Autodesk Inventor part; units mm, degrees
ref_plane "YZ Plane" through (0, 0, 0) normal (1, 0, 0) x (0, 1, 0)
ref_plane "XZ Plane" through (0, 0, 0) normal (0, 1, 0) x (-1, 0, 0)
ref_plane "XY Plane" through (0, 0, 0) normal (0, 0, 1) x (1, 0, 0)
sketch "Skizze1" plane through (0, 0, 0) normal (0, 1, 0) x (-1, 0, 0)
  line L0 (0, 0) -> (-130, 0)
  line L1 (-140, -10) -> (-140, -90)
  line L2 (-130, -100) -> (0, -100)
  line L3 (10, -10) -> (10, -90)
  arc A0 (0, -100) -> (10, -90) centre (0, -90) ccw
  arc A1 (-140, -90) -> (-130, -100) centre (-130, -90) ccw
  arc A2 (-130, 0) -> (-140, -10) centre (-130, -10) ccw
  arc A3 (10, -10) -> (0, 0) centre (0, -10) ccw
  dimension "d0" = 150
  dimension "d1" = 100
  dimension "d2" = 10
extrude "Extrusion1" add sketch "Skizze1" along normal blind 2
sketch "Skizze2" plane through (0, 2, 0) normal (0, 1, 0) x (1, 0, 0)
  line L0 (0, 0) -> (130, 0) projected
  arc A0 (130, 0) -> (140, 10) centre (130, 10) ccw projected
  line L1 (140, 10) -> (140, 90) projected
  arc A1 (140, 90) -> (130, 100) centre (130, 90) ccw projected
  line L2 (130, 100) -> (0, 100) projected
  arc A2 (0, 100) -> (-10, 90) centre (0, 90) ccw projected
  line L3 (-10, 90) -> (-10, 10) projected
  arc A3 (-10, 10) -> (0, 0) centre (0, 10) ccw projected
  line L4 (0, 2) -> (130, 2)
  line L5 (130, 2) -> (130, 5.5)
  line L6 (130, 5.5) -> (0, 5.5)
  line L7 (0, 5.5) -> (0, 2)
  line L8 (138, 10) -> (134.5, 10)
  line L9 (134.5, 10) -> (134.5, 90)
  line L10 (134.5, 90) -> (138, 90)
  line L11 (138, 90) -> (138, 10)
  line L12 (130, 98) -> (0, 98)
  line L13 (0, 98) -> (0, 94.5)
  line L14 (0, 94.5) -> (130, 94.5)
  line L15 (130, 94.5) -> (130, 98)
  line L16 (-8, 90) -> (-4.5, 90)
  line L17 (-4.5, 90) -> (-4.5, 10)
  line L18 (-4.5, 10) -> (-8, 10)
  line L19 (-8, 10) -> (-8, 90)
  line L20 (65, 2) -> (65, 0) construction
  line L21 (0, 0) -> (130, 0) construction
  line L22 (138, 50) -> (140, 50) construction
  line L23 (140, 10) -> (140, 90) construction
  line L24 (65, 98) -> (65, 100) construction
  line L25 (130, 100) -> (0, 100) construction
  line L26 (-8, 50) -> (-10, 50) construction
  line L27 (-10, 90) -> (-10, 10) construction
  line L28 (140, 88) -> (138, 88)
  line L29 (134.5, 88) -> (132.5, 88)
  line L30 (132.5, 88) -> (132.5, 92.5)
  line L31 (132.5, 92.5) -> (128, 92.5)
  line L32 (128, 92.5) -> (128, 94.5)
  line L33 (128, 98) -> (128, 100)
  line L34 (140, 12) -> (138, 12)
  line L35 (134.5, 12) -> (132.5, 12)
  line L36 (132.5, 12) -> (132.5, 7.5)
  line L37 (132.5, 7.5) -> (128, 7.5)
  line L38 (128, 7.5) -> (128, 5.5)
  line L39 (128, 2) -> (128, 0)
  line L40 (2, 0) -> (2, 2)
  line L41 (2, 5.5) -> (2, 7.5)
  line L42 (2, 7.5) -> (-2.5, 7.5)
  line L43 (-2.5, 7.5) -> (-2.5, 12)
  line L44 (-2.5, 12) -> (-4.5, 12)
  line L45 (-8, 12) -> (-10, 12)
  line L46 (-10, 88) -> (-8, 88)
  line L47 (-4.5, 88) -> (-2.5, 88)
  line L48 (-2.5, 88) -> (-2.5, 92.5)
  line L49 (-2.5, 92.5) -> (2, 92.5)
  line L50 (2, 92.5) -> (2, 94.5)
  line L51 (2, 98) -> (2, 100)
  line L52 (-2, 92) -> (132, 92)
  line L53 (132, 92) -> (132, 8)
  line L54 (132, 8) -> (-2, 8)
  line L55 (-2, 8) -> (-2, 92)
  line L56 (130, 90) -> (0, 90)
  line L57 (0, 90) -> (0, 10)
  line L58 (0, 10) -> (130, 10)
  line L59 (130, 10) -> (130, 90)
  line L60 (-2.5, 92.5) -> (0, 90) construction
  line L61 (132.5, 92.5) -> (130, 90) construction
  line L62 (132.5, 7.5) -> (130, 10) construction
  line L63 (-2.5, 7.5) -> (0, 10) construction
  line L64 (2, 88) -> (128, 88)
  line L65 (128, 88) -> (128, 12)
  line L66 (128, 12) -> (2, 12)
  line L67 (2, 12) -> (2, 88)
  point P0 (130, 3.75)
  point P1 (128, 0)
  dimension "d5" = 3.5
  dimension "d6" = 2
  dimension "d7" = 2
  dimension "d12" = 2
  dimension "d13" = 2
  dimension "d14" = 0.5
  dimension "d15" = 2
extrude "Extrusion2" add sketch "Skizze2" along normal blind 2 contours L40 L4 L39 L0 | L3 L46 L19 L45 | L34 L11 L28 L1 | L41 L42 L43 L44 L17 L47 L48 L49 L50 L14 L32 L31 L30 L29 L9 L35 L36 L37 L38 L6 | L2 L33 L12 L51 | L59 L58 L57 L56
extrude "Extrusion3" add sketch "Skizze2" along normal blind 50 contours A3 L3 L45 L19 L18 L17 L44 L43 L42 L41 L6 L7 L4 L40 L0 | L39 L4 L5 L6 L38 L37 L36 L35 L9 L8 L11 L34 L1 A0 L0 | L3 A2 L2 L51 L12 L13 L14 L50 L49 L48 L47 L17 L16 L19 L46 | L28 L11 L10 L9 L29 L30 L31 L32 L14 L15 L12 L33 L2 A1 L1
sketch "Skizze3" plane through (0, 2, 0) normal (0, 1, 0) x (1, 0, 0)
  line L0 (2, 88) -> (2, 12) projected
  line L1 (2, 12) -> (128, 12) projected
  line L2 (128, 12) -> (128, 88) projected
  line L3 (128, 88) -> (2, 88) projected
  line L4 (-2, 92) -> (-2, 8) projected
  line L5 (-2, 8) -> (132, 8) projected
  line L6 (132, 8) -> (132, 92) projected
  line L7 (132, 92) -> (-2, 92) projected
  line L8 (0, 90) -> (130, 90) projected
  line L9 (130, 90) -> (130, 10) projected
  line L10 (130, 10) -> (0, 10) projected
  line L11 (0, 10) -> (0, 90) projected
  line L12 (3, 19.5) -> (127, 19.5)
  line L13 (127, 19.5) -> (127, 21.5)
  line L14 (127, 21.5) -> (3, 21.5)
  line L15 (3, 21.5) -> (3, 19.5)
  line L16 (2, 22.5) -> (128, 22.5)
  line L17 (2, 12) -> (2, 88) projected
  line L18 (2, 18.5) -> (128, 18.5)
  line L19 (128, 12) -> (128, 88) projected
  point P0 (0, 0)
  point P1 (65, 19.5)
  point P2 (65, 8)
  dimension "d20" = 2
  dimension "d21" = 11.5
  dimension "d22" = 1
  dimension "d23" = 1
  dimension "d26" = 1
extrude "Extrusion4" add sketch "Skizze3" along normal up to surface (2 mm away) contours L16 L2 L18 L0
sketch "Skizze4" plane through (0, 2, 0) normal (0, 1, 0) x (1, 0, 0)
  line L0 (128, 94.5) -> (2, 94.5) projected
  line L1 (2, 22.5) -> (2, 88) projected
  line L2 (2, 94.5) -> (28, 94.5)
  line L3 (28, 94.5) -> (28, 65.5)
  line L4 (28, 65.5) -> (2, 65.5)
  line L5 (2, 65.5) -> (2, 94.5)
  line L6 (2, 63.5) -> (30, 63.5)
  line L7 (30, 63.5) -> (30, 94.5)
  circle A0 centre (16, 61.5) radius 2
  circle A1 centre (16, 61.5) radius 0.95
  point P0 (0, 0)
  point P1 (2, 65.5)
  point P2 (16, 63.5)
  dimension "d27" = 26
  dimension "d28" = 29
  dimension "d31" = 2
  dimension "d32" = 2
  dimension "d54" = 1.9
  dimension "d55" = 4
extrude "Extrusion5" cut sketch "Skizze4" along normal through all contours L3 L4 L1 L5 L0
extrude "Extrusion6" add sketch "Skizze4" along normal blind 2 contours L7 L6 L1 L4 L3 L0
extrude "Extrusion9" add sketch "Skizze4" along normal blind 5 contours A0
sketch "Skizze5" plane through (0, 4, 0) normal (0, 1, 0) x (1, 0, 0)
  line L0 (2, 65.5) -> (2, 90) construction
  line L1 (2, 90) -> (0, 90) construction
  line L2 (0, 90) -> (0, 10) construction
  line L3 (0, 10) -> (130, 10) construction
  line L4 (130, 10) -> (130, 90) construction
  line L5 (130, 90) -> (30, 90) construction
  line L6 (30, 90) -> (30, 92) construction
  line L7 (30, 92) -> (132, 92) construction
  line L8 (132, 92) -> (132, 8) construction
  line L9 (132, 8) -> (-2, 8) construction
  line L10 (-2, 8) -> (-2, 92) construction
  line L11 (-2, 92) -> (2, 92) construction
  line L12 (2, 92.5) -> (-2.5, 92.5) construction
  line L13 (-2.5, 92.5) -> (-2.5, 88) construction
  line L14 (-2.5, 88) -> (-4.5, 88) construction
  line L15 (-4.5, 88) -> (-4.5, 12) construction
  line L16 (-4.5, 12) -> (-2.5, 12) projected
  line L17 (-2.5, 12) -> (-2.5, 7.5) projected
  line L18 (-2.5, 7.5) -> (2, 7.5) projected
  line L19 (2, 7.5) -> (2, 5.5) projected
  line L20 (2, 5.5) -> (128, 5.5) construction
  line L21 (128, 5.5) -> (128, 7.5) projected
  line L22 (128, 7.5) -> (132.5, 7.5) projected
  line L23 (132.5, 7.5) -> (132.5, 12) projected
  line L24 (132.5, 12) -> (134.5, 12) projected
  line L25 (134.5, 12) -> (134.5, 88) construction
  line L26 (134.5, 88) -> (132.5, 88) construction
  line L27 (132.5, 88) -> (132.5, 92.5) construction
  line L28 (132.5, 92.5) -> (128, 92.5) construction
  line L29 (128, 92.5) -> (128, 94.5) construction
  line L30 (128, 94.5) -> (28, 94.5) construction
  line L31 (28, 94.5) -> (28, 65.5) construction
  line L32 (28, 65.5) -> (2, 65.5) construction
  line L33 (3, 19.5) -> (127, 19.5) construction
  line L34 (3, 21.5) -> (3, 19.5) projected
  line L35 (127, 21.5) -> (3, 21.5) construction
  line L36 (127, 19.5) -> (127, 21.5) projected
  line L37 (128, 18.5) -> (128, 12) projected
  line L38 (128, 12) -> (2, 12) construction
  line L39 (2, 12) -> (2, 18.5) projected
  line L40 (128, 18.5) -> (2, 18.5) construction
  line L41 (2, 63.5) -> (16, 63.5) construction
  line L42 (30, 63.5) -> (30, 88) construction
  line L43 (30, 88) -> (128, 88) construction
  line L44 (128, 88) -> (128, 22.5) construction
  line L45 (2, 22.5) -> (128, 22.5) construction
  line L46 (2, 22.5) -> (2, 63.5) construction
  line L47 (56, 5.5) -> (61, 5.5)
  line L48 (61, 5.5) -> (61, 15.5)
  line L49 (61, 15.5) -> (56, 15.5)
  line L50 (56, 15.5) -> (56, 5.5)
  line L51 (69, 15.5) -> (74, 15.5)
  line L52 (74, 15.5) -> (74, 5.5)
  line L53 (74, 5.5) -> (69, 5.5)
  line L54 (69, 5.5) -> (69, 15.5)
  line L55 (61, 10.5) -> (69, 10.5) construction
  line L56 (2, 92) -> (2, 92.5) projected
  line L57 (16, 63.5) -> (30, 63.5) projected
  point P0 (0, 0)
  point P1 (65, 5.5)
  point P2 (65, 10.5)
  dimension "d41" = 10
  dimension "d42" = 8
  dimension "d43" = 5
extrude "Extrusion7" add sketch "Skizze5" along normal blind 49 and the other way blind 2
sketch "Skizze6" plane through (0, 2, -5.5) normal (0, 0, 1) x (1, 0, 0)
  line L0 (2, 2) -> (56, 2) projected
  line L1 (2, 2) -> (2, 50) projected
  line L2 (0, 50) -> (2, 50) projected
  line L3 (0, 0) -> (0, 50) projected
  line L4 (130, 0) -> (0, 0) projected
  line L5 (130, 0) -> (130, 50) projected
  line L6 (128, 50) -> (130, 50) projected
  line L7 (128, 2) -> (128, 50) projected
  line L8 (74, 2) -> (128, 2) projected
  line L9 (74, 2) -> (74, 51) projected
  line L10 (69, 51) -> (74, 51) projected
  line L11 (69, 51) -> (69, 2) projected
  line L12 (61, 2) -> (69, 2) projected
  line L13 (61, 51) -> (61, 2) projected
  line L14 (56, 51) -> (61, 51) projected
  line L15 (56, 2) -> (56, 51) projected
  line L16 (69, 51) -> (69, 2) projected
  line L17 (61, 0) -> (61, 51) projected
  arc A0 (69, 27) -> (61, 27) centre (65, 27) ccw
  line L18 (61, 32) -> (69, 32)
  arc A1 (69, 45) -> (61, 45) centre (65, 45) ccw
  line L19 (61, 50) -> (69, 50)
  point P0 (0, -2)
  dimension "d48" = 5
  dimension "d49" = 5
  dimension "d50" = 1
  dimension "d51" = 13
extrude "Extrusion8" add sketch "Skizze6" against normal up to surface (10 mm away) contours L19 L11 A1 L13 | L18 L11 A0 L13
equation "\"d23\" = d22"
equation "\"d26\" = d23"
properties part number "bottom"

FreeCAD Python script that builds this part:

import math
import FreeCAD as App
import Part
import Sketcher
from FreeCAD import Vector

doc = App.newDocument("Part")
params = doc.addObject("Spreadsheet::Sheet", "Params")
for row, (alias, value) in enumerate([
    ("sketch1_radius", "10 mm"),
    ("sketch1_width", "130 mm"),
    ("pad1_length", "2 mm"),
    ("sketch2_width", "2 mm"),
    ("sketch2_width2", "126 mm"),
    ("sketch2_height", "76 mm"),
    ("pad2_length", "2 mm"),
    ("sketch3_width", "2 mm"),
    ("sketch3_width2", "3.5 mm"),
    ("sketch3_radius", "10 mm"),
    ("pad3_length", "50 mm"),
    ("sketch4_height", "2 mm"),
    ("sketch4_width", "126 mm"),
    ("pad4_length", "2 mm"),
    ("sketch5_width", "26 mm"),
    ("sketch5_height", "29 mm"),
    ("sketch6_width", "2 mm"),
    ("sketch6_width2", "26 mm"),
    ("sketch6_height", "29 mm"),
    ("pad5_length", "2 mm"),
    ("sketch7_diameter", "4 mm"),
    ("sketch7_diameter2", "1.9 mm"),
    ("pad6_length", "5 mm"),
    ("sketch8_width", "5 mm"),
    ("sketch8_height", "10 mm"),
    ("pad7_length", "49 mm"),
    ("pad7_length2", "2 mm"),
    ("sketch9_height", "5 mm"),
    ("sketch9_radius", "4 mm"),
    ("pad8_length", "10 mm"),
], start=1):
    params.set(f"A{row}", alias)
    params.set(f"B{row}", "=" + value)
    params.setAlias(f"B{row}", alias)

body = doc.addObject("PartDesign::Body", "Body")

sketch1 = doc.addObject("Sketcher::SketchObject", "Sketch")
body.addObject(sketch1)
sketch1.AttachmentSupport = (doc.XZ_Plane, [""])
sketch1.MapMode = "FlatFace"
sketch1.addGeometry([
    Part.ArcOfCircle(Part.Circle(Vector(0, -10, 0), Vector(0, 0, 1), 10), math.radians(90), math.radians(180)),
    Part.LineSegment(Vector(0, 0, 0), Vector(130, 0, 0)),
    Part.ArcOfCircle(Part.Circle(Vector(130, -10, 0), Vector(0, 0, 1), 10), math.radians(0), math.radians(90)),
    Part.LineSegment(Vector(140, -10, 0), Vector(140, -90, 0)),
    Part.ArcOfCircle(Part.Circle(Vector(130, -90, 0), Vector(0, 0, 1), 10), math.radians(-90), math.radians(0)),
    Part.LineSegment(Vector(130, -100, 0), Vector(0, -100, 0)),
    Part.ArcOfCircle(Part.Circle(Vector(0, -90, 0), Vector(0, 0, 1), 10), math.radians(180), math.radians(270)),
    Part.LineSegment(Vector(-10, -90, 0), Vector(-10, -10, 0)),
], False)
sketch1.addConstraint([
    Sketcher.Constraint("Tangent", 0, 1, 1, 1),
    Sketcher.Constraint("Tangent", 1, 2, 2, 2),
    Sketcher.Constraint("Tangent", 2, 1, 3, 1),
    Sketcher.Constraint("Tangent", 3, 2, 4, 2),
    Sketcher.Constraint("Tangent", 4, 1, 5, 1),
    Sketcher.Constraint("Tangent", 5, 2, 6, 2),
    Sketcher.Constraint("Tangent", 6, 1, 7, 1),
    Sketcher.Constraint("Tangent", 7, 2, 0, 2),
    Sketcher.Constraint("Horizontal", 1),
    Sketcher.Constraint("Vertical", 3),
    Sketcher.Constraint("Horizontal", 5),
    Sketcher.Constraint("Vertical", 7),
    Sketcher.Constraint("Coincident", 0, 1, -1, 1),
    Sketcher.Constraint("Equal", 0, 2),
    Sketcher.Constraint("Equal", 2, 4),
    Sketcher.Constraint("Equal", 4, 6),
    Sketcher.Constraint("Radius", 0, 10.0),
    Sketcher.Constraint("DistanceY", 4, 1, -1, 1, 100.0),
    Sketcher.Constraint("DistanceX", 1, 1, 1, 2, 130.0),
])
sketch1.setExpression("Constraints[16]", "Params.sketch1_radius")
sketch1.setExpression("Constraints[18]", "Params.sketch1_width")
pad1 = doc.addObject("PartDesign::Pad", "Pad")
body.addObject(pad1)
pad1.Profile = sketch1
pad1.setExpression("Length", "Params.pad1_length")
pad1.Reversed = True

sketch2 = doc.addObject("Sketcher::SketchObject", "Sketch001")
body.addObject(sketch2)
sketch2.AttachmentSupport = (doc.XZ_Plane, [""])
sketch2.MapMode = "FlatFace"
sketch2.AttachmentOffset = App.Placement(Vector(0, 0, -2), App.Rotation())
sketch2.addGeometry([
    Part.LineSegment(Vector(2, -2, 0), Vector(2, 0, 0)),
    Part.LineSegment(Vector(2, 0, 0), Vector(128, 0, 0)),
    Part.LineSegment(Vector(128, 0, 0), Vector(128, -2, 0)),
    Part.LineSegment(Vector(128, -2, 0), Vector(2, -2, 0)),
    Part.LineSegment(Vector(-10, -88, 0), Vector(-10, -12, 0)),
    Part.LineSegment(Vector(-10, -12, 0), Vector(-8, -12, 0)),
    Part.LineSegment(Vector(-8, -12, 0), Vector(-8, -88, 0)),
    Part.LineSegment(Vector(-8, -88, 0), Vector(-10, -88, 0)),
    Part.LineSegment(Vector(138, -12, 0), Vector(140, -12, 0)),
    Part.LineSegment(Vector(140, -12, 0), Vector(140, -88, 0)),
    Part.LineSegment(Vector(140, -88, 0), Vector(138, -88, 0)),
    Part.LineSegment(Vector(138, -88, 0), Vector(138, -12, 0)),
    Part.LineSegment(Vector(2, -7.5, 0), Vector(2, -5.5, 0)),
    Part.LineSegment(Vector(2, -5.5, 0), Vector(128, -5.5, 0)),
    Part.LineSegment(Vector(128, -5.5, 0), Vector(128, -7.5, 0)),
    Part.LineSegment(Vector(128, -7.5, 0), Vector(132.5, -7.5, 0)),
    Part.LineSegment(Vector(132.5, -7.5, 0), Vector(132.5, -12, 0)),
    Part.LineSegment(Vector(132.5, -12, 0), Vector(134.5, -12, 0)),
    Part.LineSegment(Vector(134.5, -12, 0), Vector(134.5, -88, 0)),
    Part.LineSegment(Vector(134.5, -88, 0), Vector(132.5, -88, 0)),
    Part.LineSegment(Vector(132.5, -88, 0), Vector(132.5, -92.5, 0)),
    Part.LineSegment(Vector(132.5, -92.5, 0), Vector(128, -92.5, 0)),
    Part.LineSegment(Vector(128, -92.5, 0), Vector(128, -94.5, 0)),
    Part.LineSegment(Vector(128, -94.5, 0), Vector(2, -94.5, 0)),
    Part.LineSegment(Vector(2, -94.5, 0), Vector(2, -92.5, 0)),
    Part.LineSegment(Vector(2, -92.5, 0), Vector(-2.5, -92.5, 0)),
    Part.LineSegment(Vector(-2.5, -92.5, 0), Vector(-2.5, -88, 0)),
    Part.LineSegment(Vector(-2.5, -88, 0), Vector(-4.5, -88, 0)),
    Part.LineSegment(Vector(-4.5, -88, 0), Vector(-4.5, -12, 0)),
    Part.LineSegment(Vector(-4.5, -12, 0), Vector(-2.5, -12, 0)),
    Part.LineSegment(Vector(-2.5, -12, 0), Vector(-2.5, -7.5, 0)),
    Part.LineSegment(Vector(-2.5, -7.5, 0), Vector(2, -7.5, 0)),
    Part.LineSegment(Vector(-2, -8, 0), Vector(-2, -92, 0)),
    Part.LineSegment(Vector(-2, -92, 0), Vector(132, -92, 0)),
    Part.LineSegment(Vector(132, -92, 0), Vector(132, -8, 0)),
    Part.LineSegment(Vector(132, -8, 0), Vector(-2, -8, 0)),
    Part.LineSegment(Vector(128, -100, 0), Vector(2, -100, 0)),
    Part.LineSegment(Vector(2, -100, 0), Vector(2, -98, 0)),
    Part.LineSegment(Vector(2, -98, 0), Vector(128, -98, 0)),
    Part.LineSegment(Vector(128, -98, 0), Vector(128, -100, 0)),
    Part.LineSegment(Vector(130, -10, 0), Vector(130, -90, 0)),
    Part.LineSegment(Vector(130, -90, 0), Vector(0, -90, 0)),
    Part.LineSegment(Vector(0, -90, 0), Vector(0, -10, 0)),
    Part.LineSegment(Vector(0, -10, 0), Vector(130, -10, 0)),
    Part.LineSegment(Vector(2, -12, 0), Vector(2, -88, 0)),
    Part.LineSegment(Vector(2, -88, 0), Vector(128, -88, 0)),
    Part.LineSegment(Vector(128, -88, 0), Vector(128, -12, 0)),
    Part.LineSegment(Vector(128, -12, 0), Vector(2, -12, 0)),
], False)
sketch2.addConstraint([
    Sketcher.Constraint("Coincident", 0, 2, 1, 1),
    Sketcher.Constraint("Coincident", 1, 2, 2, 1),
    Sketcher.Constraint("Coincident", 2, 2, 3, 1),
    Sketcher.Constraint("Coincident", 3, 2, 0, 1),
    Sketcher.Constraint("Coincident", 4, 2, 5, 1),
    Sketcher.Constraint("Coincident", 5, 2, 6, 1),
    Sketcher.Constraint("Coincident", 6, 2, 7, 1),
    Sketcher.Constraint("Coincident", 7, 2, 4, 1),
    Sketcher.Constraint("Coincident", 8, 2, 9, 1),
    Sketcher.Constraint("Coincident", 9, 2, 10, 1),
    Sketcher.Constraint("Coincident", 10, 2, 11, 1),
    Sketcher.Constraint("Coincident", 11, 2, 8, 1),
    Sketcher.Constraint("Coincident", 12, 2, 13, 1),
    Sketcher.Constraint("Coincident", 13, 2, 14, 1),
    Sketcher.Constraint("Coincident", 14, 2, 15, 1),
    Sketcher.Constraint("Coincident", 15, 2, 16, 1),
    Sketcher.Constraint("Coincident", 16, 2, 17, 1),
    Sketcher.Constraint("Coincident", 17, 2, 18, 1),
    Sketcher.Constraint("Coincident", 18, 2, 19, 1),
    Sketcher.Constraint("Coincident", 19, 2, 20, 1),
    Sketcher.Constraint("Coincident", 20, 2, 21, 1),
    Sketcher.Constraint("Coincident", 21, 2, 22, 1),
    Sketcher.Constraint("Coincident", 22, 2, 23, 1),
    Sketcher.Constraint("Coincident", 23, 2, 24, 1),
    Sketcher.Constraint("Coincident", 24, 2, 25, 1),
    Sketcher.Constraint("Coincident", 25, 2, 26, 1),
    Sketcher.Constraint("Coincident", 26, 2, 27, 1),
    Sketcher.Constraint("Coincident", 27, 2, 28, 1),
    Sketcher.Constraint("Coincident", 28, 2, 29, 1),
    Sketcher.Constraint("Coincident", 29, 2, 30, 1),
    Sketcher.Constraint("Coincident", 30, 2, 31, 1),
    Sketcher.Constraint("Coincident", 31, 2, 12, 1),
    Sketcher.Constraint("Coincident", 32, 2, 33, 1),
    Sketcher.Constraint("Coincident", 33, 2, 34, 1),
    Sketcher.Constraint("Coincident", 34, 2, 35, 1),
    Sketcher.Constraint("Coincident", 35, 2, 32, 1),
    Sketcher.Constraint("Coincident", 36, 2, 37, 1),
    Sketcher.Constraint("Coincident", 37, 2, 38, 1),
    Sketcher.Constraint("Coincident", 38, 2, 39, 1),
    Sketcher.Constraint("Coincident", 39, 2, 36, 1),
    Sketcher.Constraint("Coincident", 40, 2, 41, 1),
    Sketcher.Constraint("Coincident", 41, 2, 42, 1),
    Sketcher.Constraint("Coincident", 42, 2, 43, 1),
    Sketcher.Constraint("Coincident", 43, 2, 40, 1),
    Sketcher.Constraint("Coincident", 44, 2, 45, 1),
    Sketcher.Constraint("Coincident", 45, 2, 46, 1),
    Sketcher.Constraint("Coincident", 46, 2, 47, 1),
    Sketcher.Constraint("Coincident", 47, 2, 44, 1),
    Sketcher.Constraint("Vertical", 0),
    Sketcher.Constraint("Horizontal", 1),
    Sketcher.Constraint("Vertical", 2),
    Sketcher.Constraint("Horizontal", 3),
    Sketcher.Constraint("Vertical", 4),
    Sketcher.Constraint("Horizontal", 5),
    Sketcher.Constraint("Vertical", 6),
    Sketcher.Constraint("Horizontal", 7),
    Sketcher.Constraint("Horizontal", 8),
    Sketcher.Constraint("Vertical", 9),
    Sketcher.Constraint("Horizontal", 10),
    Sketcher.Constraint("Vertical", 11),
    Sketcher.Constraint("Vertical", 12),
    Sketcher.Constraint("Horizontal", 13),
    Sketcher.Constraint("Vertical", 14),
    Sketcher.Constraint("Horizontal", 15),
    Sketcher.Constraint("Vertical", 16),
    Sketcher.Constraint("Horizontal", 17),
    Sketcher.Constraint("Vertical", 18),
    Sketcher.Constraint("Horizontal", 19),
    Sketcher.Constraint("Vertical", 20),
    Sketcher.Constraint("Horizontal", 21),
    Sketcher.Constraint("Vertical", 22),
    Sketcher.Constraint("Horizontal", 23),
    Sketcher.Constraint("Vertical", 24),
    Sketcher.Constraint("Horizontal", 25),
    Sketcher.Constraint("Vertical", 26),
    Sketcher.Constraint("Horizontal", 27),
    Sketcher.Constraint("Vertical", 28),
    Sketcher.Constraint("Horizontal", 29),
    Sketcher.Constraint("Vertical", 30),
    Sketcher.Constraint("Horizontal", 31),
    Sketcher.Constraint("Vertical", 32),
    Sketcher.Constraint("Horizontal", 33),
    Sketcher.Constraint("Vertical", 34),
    Sketcher.Constraint("Horizontal", 35),
    Sketcher.Constraint("Horizontal", 36),
    Sketcher.Constraint("Vertical", 37),
    Sketcher.Constraint("Horizontal", 38),
    Sketcher.Constraint("Vertical", 39),
    Sketcher.Constraint("Vertical", 40),
    Sketcher.Constraint("Horizontal", 41),
    Sketcher.Constraint("Vertical", 42),
    Sketcher.Constraint("Horizontal", 43),
    Sketcher.Constraint("Vertical", 44),
    Sketcher.Constraint("Horizontal", 45),
    Sketcher.Constraint("Vertical", 46),
    Sketcher.Constraint("Horizontal", 47),
    Sketcher.Constraint("PointOnObject", 0, 2, -1),
    Sketcher.Constraint("PointOnObject", 41, 2, -2),
    Sketcher.Constraint("Horizontal", 5, 2, 8, 2),
    Sketcher.Constraint("Horizontal", 7, 2, 9, 2),
    Sketcher.Constraint("Horizontal", 11, 2, 16, 2),
    Sketcher.Constraint("Horizontal", 10, 2, 18, 2),
    Sketcher.Constraint("Horizontal", 21, 2, 24, 2),
    Sketcher.Constraint("Horizontal", 19, 2, 26, 2),
    Sketcher.Constraint("Horizontal", 17, 2, 28, 2),
    Sketcher.Constraint("Horizontal", 15, 2, 30, 2),
    Sketcher.Constraint("Horizontal", 27, 2, 44, 2),
    Sketcher.Constraint("Horizontal", 29, 2, 46, 2),
    Sketcher.Constraint("Vertical", 3, 2, 12, 2),
    Sketcher.Constraint("Vertical", 2, 2, 13, 2),
    Sketcher.Constraint("Vertical", 16, 2, 19, 2),
    Sketcher.Constraint("Vertical", 14, 2, 21, 2),
    Sketcher.Constraint("Vertical", 12, 2, 23, 2),
    Sketcher.Constraint("Vertical", 26, 2, 29, 2),
    Sketcher.Constraint("Vertical", 31, 2, 36, 2),
    Sketcher.Constraint("Vertical", 22, 2, 38, 2),
    Sketcher.Constraint("Vertical", 37, 2, 44, 2),
    Sketcher.Constraint("Vertical", 39, 2, 45, 2),
    Sketcher.Constraint("Equal", 7, 8),
    Sketcher.Constraint("Equal", 10, 17),
    Sketcher.Constraint("Equal", 21, 25),
    Sketcher.Constraint("Equal", 19, 27),
    Sketcher.Constraint("Equal", 29, 0),
    Sketcher.Constraint("Equal", 2, 12),
    Sketcher.Constraint("Equal", 31, 16),
    Sketcher.Constraint("Equal", 16, 20),
    Sketcher.Constraint("Equal", 14, 22),
    Sketcher.Constraint("Equal", 24, 37),
    Sketcher.Constraint("DistanceX", 5, 1, 5, 2, 2.0),
    Sketcher.Constraint("DistanceX", -1, 1, 0, 2, 2.0),
    Sketcher.Constraint("DistanceX", 32, 2, -1, 1, 2.0),
    Sketcher.Constraint("DistanceX", 40, 2, 33, 2, 2.0),
    Sketcher.Constraint("DistanceY", 33, 2, 40, 2, 2.0),
    Sketcher.Constraint("DistanceY", 40, 2, 19, 2, 2.0),
    Sketcher.Constraint("DistanceX", 21, 2, 40, 2, 2.0),
    Sketcher.Constraint("DistanceY", 42, 2, 35, 2, 2.0),
    Sketcher.Constraint("DistanceY", 29, 2, 42, 2, 2.0),
    Sketcher.Constraint("DistanceY", 12, 2, 3, 2, 3.5),
    Sketcher.Constraint("DistanceX", 17, 2, 11, 2, 3.5),
    Sketcher.Constraint("DistanceX", 6, 2, 27, 2, 3.5),
    Sketcher.Constraint("DistanceX", 25, 2, 32, 2, 0.5),
    Sketcher.Constraint("DistanceY", 37, 2, 23, 2, 3.5),
    Sketcher.Constraint("DistanceX", 1, 1, 1, 2, 126.0),
    Sketcher.Constraint("DistanceY", 4, 1, 4, 2, 76.0),
])
sketch2.setExpression("Constraints[128]", "Params.sketch2_width")
sketch2.setExpression("Constraints[142]", "Params.sketch2_width2")
sketch2.setExpression("Constraints[143]", "Params.sketch2_height")
pad2 = doc.addObject("PartDesign::Pad", "Pad001")
body.addObject(pad2)
pad2.Profile = sketch2
pad2.setExpression("Length", "Params.pad2_length")
pad2.Reversed = True

sketch3 = doc.addObject("Sketcher::SketchObject", "Sketch002")
body.addObject(sketch3)
sketch3.AttachmentSupport = (doc.XZ_Plane, [""])
sketch3.MapMode = "FlatFace"
sketch3.AttachmentOffset = App.Placement(Vector(0, 0, -2), App.Rotation())
sketch3.addGeometry([
    Part.ArcOfCircle(Part.Circle(Vector(0, -10, 0), Vector(0, 0, 1), 10), math.radians(90), math.radians(180)),
    Part.LineSegment(Vector(0, 0, 0), Vector(2, 0, 0)),
    Part.LineSegment(Vector(2, 0, 0), Vector(2, -2, 0)),
    Part.LineSegment(Vector(2, -2, 0), Vector(0, -2, 0)),
    Part.LineSegment(Vector(0, -2, 0), Vector(0, -5.5, 0)),
    Part.LineSegment(Vector(0, -5.5, 0), Vector(2, -5.5, 0)),
    Part.LineSegment(Vector(2, -5.5, 0), Vector(2, -7.5, 0)),
    Part.LineSegment(Vector(2, -7.5, 0), Vector(-2.5, -7.5, 0)),
    Part.LineSegment(Vector(-2.5, -7.5, 0), Vector(-2.5, -12, 0)),
    Part.LineSegment(Vector(-2.5, -12, 0), Vector(-4.5, -12, 0)),
    Part.LineSegment(Vector(-4.5, -12, 0), Vector(-4.5, -10, 0)),
    Part.LineSegment(Vector(-4.5, -10, 0), Vector(-8, -10, 0)),
    Part.LineSegment(Vector(-8, -10, 0), Vector(-8, -12, 0)),
    Part.LineSegment(Vector(-8, -12, 0), Vector(-10, -12, 0)),
    Part.LineSegment(Vector(-10, -12, 0), Vector(-10, -10, 0)),
    Part.LineSegment(Vector(128, -2, 0), Vector(128, 0, 0)),
    Part.LineSegment(Vector(128, 0, 0), Vector(130, 0, 0)),
    Part.ArcOfCircle(Part.Circle(Vector(130, -10, 0), Vector(0, 0, 1), 10), math.radians(0), math.radians(90)),
    Part.LineSegment(Vector(140, -10, 0), Vector(140, -12, 0)),
    Part.LineSegment(Vector(140, -12, 0), Vector(138, -12, 0)),
    Part.LineSegment(Vector(138, -12, 0), Vector(138, -10, 0)),
    Part.LineSegment(Vector(138, -10, 0), Vector(134.5, -10, 0)),
    Part.LineSegment(Vector(134.5, -10, 0), Vector(134.5, -12, 0)),
    Part.LineSegment(Vector(134.5, -12, 0), Vector(132.5, -12, 0)),
    Part.LineSegment(Vector(132.5, -12, 0), Vector(132.5, -7.5, 0)),
    Part.LineSegment(Vector(132.5, -7.5, 0), Vector(128, -7.5, 0)),
    Part.LineSegment(Vector(128, -7.5, 0), Vector(128, -5.5, 0)),
    Part.LineSegment(Vector(128, -5.5, 0), Vector(130, -5.5, 0)),
    Part.LineSegment(Vector(130, -5.5, 0), Vector(130, -2, 0)),
    Part.LineSegment(Vector(130, -2, 0), Vector(128, -2, 0)),
    Part.LineSegment(Vector(-10, -90, 0), Vector(-10, -88, 0)),
    Part.LineSegment(Vector(-10, -88, 0), Vector(-8, -88, 0)),
    Part.LineSegment(Vector(-8, -88, 0), Vector(-8, -90, 0)),
    Part.LineSegment(Vector(-8, -90, 0), Vector(-4.5, -90, 0)),
    Part.LineSegment(Vector(-4.5, -90, 0), Vector(-4.5, -88, 0)),
    Part.LineSegment(Vector(-4.5, -88, 0), Vector(-2.5, -88, 0)),
    Part.LineSegment(Vector(-2.5, -88, 0), Vector(-2.5, -92.5, 0)),
    Part.LineSegment(Vector(-2.5, -92.5, 0), Vector(2, -92.5, 0)),
    Part.LineSegment(Vector(2, -92.5, 0), Vector(2, -94.5, 0)),
    Part.LineSegment(Vector(2, -94.5, 0), Vector(0, -94.5, 0)),
    Part.LineSegment(Vector(0, -94.5, 0), Vector(0, -98, 0)),
    Part.LineSegment(Vector(0, -98, 0), Vector(2, -98, 0)),
    Part.LineSegment(Vector(2, -98, 0), Vector(2, -100, 0)),
    Part.LineSegment(Vector(2, -100, 0), Vector(0, -100, 0)),
    Part.ArcOfCircle(Part.Circle(Vector(0, -90, 0), Vector(0, 0, 1), 10), math.radians(180), math.radians(270)),
    Part.LineSegment(Vector(138, -88, 0), Vector(140, -88, 0)),
    Part.LineSegment(Vector(140, -88, 0), Vector(140, -90, 0)),
    Part.ArcOfCircle(Part.Circle(Vector(130, -90, 0), Vector(0, 0, 1), 10), math.radians(-90), math.radians(0)),
    Part.LineSegment(Vector(130, -100, 0), Vector(128, -100, 0)),
    Part.LineSegment(Vector(128, -100, 0), Vector(128, -98, 0)),
    Part.LineSegment(Vector(128, -98, 0), Vector(130, -98, 0)),
    Part.LineSegment(Vector(130, -98, 0), Vector(130, -94.5, 0)),
    Part.LineSegment(Vector(130, -94.5, 0), Vector(128, -94.5, 0)),
    Part.LineSegment(Vector(128, -94.5, 0), Vector(128, -92.5, 0)),
    Part.LineSegment(Vector(128, -92.5, 0), Vector(132.5, -92.5, 0)),
    Part.LineSegment(Vector(132.5, -92.5, 0), Vector(132.5, -88, 0)),
    Part.LineSegment(Vector(132.5, -88, 0), Vector(134.5, -88, 0)),
    Part.LineSegment(Vector(134.5, -88, 0), Vector(134.5, -90, 0)),
    Part.LineSegment(Vector(134.5, -90, 0), Vector(138, -90, 0)),
    Part.LineSegment(Vector(138, -90, 0), Vector(138, -88, 0)),
], False)
sketch3.addConstraint([
    Sketcher.Constraint("Tangent", 0, 1, 1, 1),
    Sketcher.Constraint("Coincident", 1, 2, 2, 1),
    Sketcher.Constraint("Coincident", 2, 2, 3, 1),
    Sketcher.Constraint("Coincident", 3, 2, 4, 1),
    Sketcher.Constraint("Coincident", 4, 2, 5, 1),
    Sketcher.Constraint("Coincident", 5, 2, 6, 1),
    Sketcher.Constraint("Coincident", 6, 2, 7, 1),
    Sketcher.Constraint("Coincident", 7, 2, 8, 1),
    Sketcher.Constraint("Coincident", 8, 2, 9, 1),
    Sketcher.Constraint("Coincident", 9, 2, 10, 1),
    Sketcher.Constraint("Coincident", 10, 2, 11, 1),
    Sketcher.Constraint("Coincident", 11, 2, 12, 1),
    Sketcher.Constraint("Coincident", 12, 2, 13, 1),
    Sketcher.Constraint("Coincident", 13, 2, 14, 1),
    Sketcher.Constraint("Tangent", 14, 2, 0, 2),
    Sketcher.Constraint("Coincident", 15, 2, 16, 1),
    Sketcher.Constraint("Tangent", 16, 2, 17, 2),
    Sketcher.Constraint("Tangent", 17, 1, 18, 1),
    Sketcher.Constraint("Coincident", 18, 2, 19, 1),
    Sketcher.Constraint("Coincident", 19, 2, 20, 1),
    Sketcher.Constraint("Coincident", 20, 2, 21, 1),
    Sketcher.Constraint("Coincident", 21, 2, 22, 1),
    Sketcher.Constraint("Coincident", 22, 2, 23, 1),
    Sketcher.Constraint("Coincident", 23, 2, 24, 1),
    Sketcher.Constraint("Coincident", 24, 2, 25, 1),
    Sketcher.Constraint("Coincident", 25, 2, 26, 1),
    Sketcher.Constraint("Coincident", 26, 2, 27, 1),
    Sketcher.Constraint("Coincident", 27, 2, 28, 1),
    Sketcher.Constraint("Coincident", 28, 2, 29, 1),
    Sketcher.Constraint("Coincident", 29, 2, 15, 1),
    Sketcher.Constraint("Coincident", 30, 2, 31, 1),
    Sketcher.Constraint("Coincident", 31, 2, 32, 1),
    Sketcher.Constraint("Coincident", 32, 2, 33, 1),
    Sketcher.Constraint("Coincident", 33, 2, 34, 1),
    Sketcher.Constraint("Coincident", 34, 2, 35, 1),
    Sketcher.Constraint("Coincident", 35, 2, 36, 1),
    Sketcher.Constraint("Coincident", 36, 2, 37, 1),
    Sketcher.Constraint("Coincident", 37, 2, 38, 1),
    Sketcher.Constraint("Coincident", 38, 2, 39, 1),
    Sketcher.Constraint("Coincident", 39, 2, 40, 1),
    Sketcher.Constraint("Coincident", 40, 2, 41, 1),
    Sketcher.Constraint("Coincident", 41, 2, 42, 1),
    Sketcher.Constraint("Coincident", 42, 2, 43, 1),
    Sketcher.Constraint("Tangent", 43, 2, 44, 2),
    Sketcher.Constraint("Tangent", 44, 1, 30, 1),
    Sketcher.Constraint("Coincident", 45, 2, 46, 1),
    Sketcher.Constraint("Tangent", 46, 2, 47, 2),
    Sketcher.Constraint("Tangent", 47, 1, 48, 1),
    Sketcher.Constraint("Coincident", 48, 2, 49, 1),
    Sketcher.Constraint("Coincident", 49, 2, 50, 1),
    Sketcher.Constraint("Coincident", 50, 2, 51, 1),
    Sketcher.Constraint("Coincident", 51, 2, 52, 1),
    Sketcher.Constraint("Coincident", 52, 2, 53, 1),
    Sketcher.Constraint("Coincident", 53, 2, 54, 1),
    Sketcher.Constraint("Coincident", 54, 2, 55, 1),
    Sketcher.Constraint("Coincident", 55, 2, 56, 1),
    Sketcher.Constraint("Coincident", 56, 2, 57, 1),
    Sketcher.Constraint("Coincident", 57, 2, 58, 1),
    Sketcher.Constraint("Coincident", 58, 2, 59, 1),
    Sketcher.Constraint("Coincident", 59, 2, 45, 1),
    Sketcher.Constraint("Horizontal", 1),
    Sketcher.Constraint("Vertical", 2),
    Sketcher.Constraint("Horizontal", 3),
    Sketcher.Constraint("Vertical", 4),
    Sketcher.Constraint("Horizontal", 5),
    Sketcher.Constraint("Vertical", 6),
    Sketcher.Constraint("Horizontal", 7),
    Sketcher.Constraint("Vertical", 8),
    Sketcher.Constraint("Horizontal", 9),
    Sketcher.Constraint("Vertical", 10),
    Sketcher.Constraint("Horizontal", 11),
    Sketcher.Constraint("Vertical", 12),
    Sketcher.Constraint("Horizontal", 13),
    Sketcher.Constraint("Vertical", 14),
    Sketcher.Constraint("Vertical", 15),
    Sketcher.Constraint("Horizontal", 16),
    Sketcher.Constraint("Vertical", 18),
    Sketcher.Constraint("Horizontal", 19),
    Sketcher.Constraint("Vertical", 20),
    Sketcher.Constraint("Horizontal", 21),
    Sketcher.Constraint("Vertical", 22),
    Sketcher.Constraint("Horizontal", 23),
    Sketcher.Constraint("Vertical", 24),
    Sketcher.Constraint("Horizontal", 25),
    Sketcher.Constraint("Vertical", 26),
    Sketcher.Constraint("Horizontal", 27),
    Sketcher.Constraint("Vertical", 28),
    Sketcher.Constraint("Horizontal", 29),
    Sketcher.Constraint("Vertical", 30),
    Sketcher.Constraint("Horizontal", 31),
    Sketcher.Constraint("Vertical", 32),
    Sketcher.Constraint("Horizontal", 33),
    Sketcher.Constraint("Vertical", 34),
    Sketcher.Constraint("Horizontal", 35),
    Sketcher.Constraint("Vertical", 36),
    Sketcher.Constraint("Horizontal", 37),
    Sketcher.Constraint("Vertical", 38),
    Sketcher.Constraint("Horizontal", 39),
    Sketcher.Constraint("Vertical", 40),
    Sketcher.Constraint("Horizontal", 41),
    Sketcher.Constraint("Vertical", 42),
    Sketcher.Constraint("Horizontal", 43),
    Sketcher.Constraint("Horizontal", 45),
    Sketcher.Constraint("Vertical", 46),
    Sketcher.Constraint("Horizontal", 48),
    Sketcher.Constraint("Vertical", 49),
    Sketcher.Constraint("Horizontal", 50),
    Sketcher.Constraint("Vertical", 51),
    Sketcher.Constraint("Horizontal", 52),
    Sketcher.Constraint("Vertical", 53),
    Sketcher.Constraint("Horizontal", 54),
    Sketcher.Constraint("Vertical", 55),
    Sketcher.Constraint("Horizontal", 56),
    Sketcher.Constraint("Vertical", 57),
    Sketcher.Constraint("Horizontal", 58),
    Sketcher.Constraint("Vertical", 59),
    Sketcher.Constraint("Coincident", 0, 1, -1, 1),
    Sketcher.Constraint("Equal", 0, 17),
    Sketcher.Constraint("Equal", 17, 44),
    Sketcher.Constraint("Equal", 44, 47),
    Sketcher.Constraint("PointOnObject", 44, 3, -2),
    Sketcher.Constraint("PointOnObject", 3, 2, -2),
    Sketcher.Constraint("PointOnObject", 15, 2, -1),
    Sketcher.Constraint("PointOnObject", 39, 2, -2),
    Sketcher.Constraint("Horizontal", 44, 3, 47, 3),
    Sketcher.Constraint("Horizontal", 17, 3, 10, 2),
    Sketcher.Constraint("Horizontal", 9, 2, 12, 2),
    Sketcher.Constraint("Horizontal", 13, 2, 18, 2),
    Sketcher.Constraint("Horizontal", 17, 1, 20, 2),
    Sketcher.Constraint("Horizontal", 19, 2, 22, 2),
    Sketcher.Constraint("Horizontal", 7, 2, 24, 2),
    Sketcher.Constraint("Horizontal", 5, 2, 26, 2),
    Sketcher.Constraint("Horizontal", 3, 2, 28, 2),
    Sketcher.Constraint("Horizontal", 47, 3, 32, 2),
    Sketcher.Constraint("Horizontal", 31, 2, 34, 2),
    Sketcher.Constraint("Horizontal", 35, 2, 45, 2),
    Sketcher.Constraint("Horizontal", 41, 2, 49, 2),
    Sketcher.Constraint("Horizontal", 39, 2, 51, 2),
    Sketcher.Constraint("Horizontal", 37, 2, 53, 2),
    Sketcher.Constraint("Horizontal", 45, 2, 55, 2),
    Sketcher.Constraint("Horizontal", 46, 2, 57, 2),
    Sketcher.Constraint("Vertical", 17, 3, 47, 3),
    Sketcher.Constraint("Vertical", 2, 2, 5, 2),
    Sketcher.Constraint("Vertical", 15, 2, 25, 2),
    Sketcher.Constraint("Vertical", 16, 2, 27, 2),
    Sketcher.Constraint("Vertical", 12, 2, 31, 2),
    Sketcher.Constraint("Vertical", 10, 2, 33, 2),
    Sketcher.Constraint("Vertical", 8, 2, 35, 2),
    Sketcher.Constraint("Vertical", 6, 2, 37, 2),
    Sketcher.Constraint("Vertical", 38, 2, 41, 2),
    Sketcher.Constraint("Vertical", 29, 2, 48, 2),
    Sketcher.Constraint("Vertical", 47, 1, 50, 2),
    Sketcher.Constraint("Vertical", 49, 2, 52, 2),
    Sketcher.Constraint("Vertical", 24, 2, 54, 2),
    Sketcher.Constraint("Vertical", 22, 2, 56, 2),
    Sketcher.Constraint("Vertical", 20, 2, 58, 2),
    Sketcher.Constraint("Equal", 5, 9),
    Sketcher.Constraint("Equal", 9, 13),
    Sketcher.Constraint("Equal", 13, 16),
    Sketcher.Constraint("Equal", 16, 19),
    Sketcher.Constraint("Equal", 11, 21),
    Sketcher.Constraint("Equal", 19, 23),
    Sketcher.Constraint("Equal", 56, 2),
    Sketcher.Constraint("Equal", 58, 4),
    Sketcher.Constraint("Equal", 2, 6),
    Sketcher.Constraint("Equal", 54, 8),
    Sketcher.Constraint("Equal", 26, 30),
    Sketcher.Constraint("Equal", 24, 36),
    Sketcher.Constraint("Equal", 34, 38),
    Sketcher.Constraint("Equal", 28, 40),
    Sketcher.Constraint("DistanceX", 1, 1, 1, 2, 2.0),
    Sketcher.Constraint("DistanceX", 11, 2, 11, 1, 3.5),
    Sketcher.Constraint("Radius", 0, 10.0),
    Sketcher.Constraint("DistanceX", -1, 1, 17, 3, 130.0),
    Sketcher.Constraint("DistanceY", 44, 3, -1, 1, 90.0),
])
sketch3.setExpression("Constraints[170]", "Params.sketch3_width")
sketch3.setExpression("Constraints[171]", "Params.sketch3_width2")
sketch3.setExpression("Constraints[172]", "Params.sketch3_radius")
pad3 = doc.addObject("PartDesign::Pad", "Pad002")
body.addObject(pad3)
pad3.Profile = sketch3
pad3.setExpression("Length", "Params.pad3_length")
pad3.Reversed = True

sketch4 = doc.addObject("Sketcher::SketchObject", "Sketch003")
body.addObject(sketch4)
sketch4.AttachmentSupport = (doc.XZ_Plane, [""])
sketch4.MapMode = "FlatFace"
sketch4.AttachmentOffset = App.Placement(Vector(0, 0, -2), App.Rotation())
sketch4.addGeometry([
    Part.LineSegment(Vector(128, -22.5, 0), Vector(2, -22.5, 0)),
    Part.LineSegment(Vector(2, -22.5, 0), Vector(2, -18.5, 0)),
    Part.LineSegment(Vector(2, -18.5, 0), Vector(128, -18.5, 0)),
    Part.LineSegment(Vector(128, -18.5, 0), Vector(128, -22.5, 0)),
    Part.LineSegment(Vector(127, -19.5, 0), Vector(3, -19.5, 0)),
    Part.LineSegment(Vector(3, -19.5, 0), Vector(3, -21.5, 0)),
    Part.LineSegment(Vector(3, -21.5, 0), Vector(127, -21.5, 0)),
    Part.LineSegment(Vector(127, -21.5, 0), Vector(127, -19.5, 0)),
], False)
sketch4.addConstraint([
    Sketcher.Constraint("Coincident", 0, 2, 1, 1),
    Sketcher.Constraint("Coincident", 1, 2, 2, 1),
    Sketcher.Constraint("Coincident", 2, 2, 3, 1),
    Sketcher.Constraint("Coincident", 3, 2, 0, 1),
    Sketcher.Constraint("Coincident", 4, 2, 5, 1),
    Sketcher.Constraint("Coincident", 5, 2, 6, 1),
    Sketcher.Constraint("Coincident", 6, 2, 7, 1),
    Sketcher.Constraint("Coincident", 7, 2, 4, 1),
    Sketcher.Constraint("Horizontal", 0),
    Sketcher.Constraint("Vertical", 1),
    Sketcher.Constraint("Horizontal", 2),
    Sketcher.Constraint("Vertical", 3),
    Sketcher.Constraint("Horizontal", 4),
    Sketcher.Constraint("Vertical", 5),
    Sketcher.Constraint("Horizontal", 6),
    Sketcher.Constraint("Vertical", 7),
    Sketcher.Constraint("DistanceY", 5, 2, 5, 1, 2.0),
    Sketcher.Constraint("DistanceX", -1, 1, 0, 2, 2.0),
    Sketcher.Constraint("DistanceX", 1, 2, 4, 2, 1.0),
    Sketcher.Constraint("DistanceY", 4, 2, 1, 2, 1.0),
    Sketcher.Constraint("DistanceY", 0, 2, 5, 2, 1.0),
    Sketcher.Constraint("DistanceX", 6, 2, 3, 2, 1.0),
    Sketcher.Constraint("DistanceX", 0, 2, 0, 1, 126.0),
    Sketcher.Constraint("DistanceY", 0, 2, -1, 1, 22.5),
])
sketch4.setExpression("Constraints[16]", "Params.sketch4_height")
sketch4.setExpression("Constraints[22]", "Params.sketch4_width")
pad4 = doc.addObject("PartDesign::Pad", "Pad003")
body.addObject(pad4)
pad4.Profile = sketch4
pad4.setExpression("Length", "Params.pad4_length")
pad4.Reversed = True

sketch5 = doc.addObject("Sketcher::SketchObject", "Sketch004")
body.addObject(sketch5)
sketch5.AttachmentSupport = (doc.XZ_Plane, [""])
sketch5.MapMode = "FlatFace"
sketch5.AttachmentOffset = App.Placement(Vector(0, 0, -2), App.Rotation())
sketch5.addGeometry([
    Part.LineSegment(Vector(28, -65.5, 0), Vector(28, -94.5, 0)),
    Part.LineSegment(Vector(28, -94.5, 0), Vector(2, -94.5, 0)),
    Part.LineSegment(Vector(2, -94.5, 0), Vector(2, -65.5, 0)),
    Part.LineSegment(Vector(2, -65.5, 0), Vector(28, -65.5, 0)),
], False)
sketch5.addConstraint([
    Sketcher.Constraint("Coincident", 0, 2, 1, 1),
    Sketcher.Constraint("Coincident", 1, 2, 2, 1),
    Sketcher.Constraint("Coincident", 2, 2, 3, 1),
    Sketcher.Constraint("Coincident", 3, 2, 0, 1),
    Sketcher.Constraint("Vertical", 0),
    Sketcher.Constraint("Horizontal", 1),
    Sketcher.Constraint("Vertical", 2),
    Sketcher.Constraint("Horizontal", 3),
    Sketcher.Constraint("DistanceX", 1, 2, 1, 1, 26.0),
    Sketcher.Constraint("DistanceY", 0, 2, 0, 1, 29.0),
    Sketcher.Constraint("DistanceX", -1, 1, 1, 2, 2.0),
    Sketcher.Constraint("DistanceY", 0, 2, -1, 1, 94.5),
])
sketch5.setExpression("Constraints[8]", "Params.sketch5_width")
sketch5.setExpression("Constraints[9]", "Params.sketch5_height")
pocket1 = doc.addObject("PartDesign::Pocket", "Pocket")
body.addObject(pocket1)
pocket1.Profile = sketch5
pocket1.Type = "ThroughAll"

sketch6 = doc.addObject("Sketcher::SketchObject", "Sketch005")
body.addObject(sketch6)
sketch6.AttachmentSupport = (doc.XZ_Plane, [""])
sketch6.MapMode = "FlatFace"
sketch6.AttachmentOffset = App.Placement(Vector(0, 0, -2), App.Rotation())
sketch6.addGeometry([
    Part.LineSegment(Vector(30, -63.5, 0), Vector(30, -94.5, 0)),
    Part.LineSegment(Vector(30, -94.5, 0), Vector(28, -94.5, 0)),
    Part.LineSegment(Vector(28, -94.5, 0), Vector(28, -65.5, 0)),
    Part.LineSegment(Vector(28, -65.5, 0), Vector(2, -65.5, 0)),
    Part.LineSegment(Vector(2, -65.5, 0), Vector(2, -63.5, 0)),
    Part.LineSegment(Vector(2, -63.5, 0), Vector(30, -63.5, 0)),
], False)
sketch6.addConstraint([
    Sketcher.Constraint("Coincident", 0, 2, 1, 1),
    Sketcher.Constraint("Coincident", 1, 2, 2, 1),
    Sketcher.Constraint("Coincident", 2, 2, 3, 1),
    Sketcher.Constraint("Coincident", 3, 2, 4, 1),
    Sketcher.Constraint("Coincident", 4, 2, 5, 1),
    Sketcher.Constraint("Coincident", 5, 2, 0, 1),
    Sketcher.Constraint("Vertical", 0),
    Sketcher.Constraint("Horizontal", 1),
    Sketcher.Constraint("Vertical", 2),
    Sketcher.Constraint("Horizontal", 3),
    Sketcher.Constraint("Vertical", 4),
    Sketcher.Constraint("Horizontal", 5),
    Sketcher.Constraint("Equal", 1, 4),
    Sketcher.Constraint("DistanceX", 1, 2, 1, 1, 2.0),
    Sketcher.Constraint("DistanceX", 3, 2, 3, 1, 26.0),
    Sketcher.Constraint("DistanceY", 2, 1, 2, 2, 29.0),
    Sketcher.Constraint("DistanceX", -1, 1, 3, 2, 2.0),
    Sketcher.Constraint("DistanceY", 0, 2, -1, 1, 94.5),
])
sketch6.setExpression("Constraints[13]", "Params.sketch6_width")
sketch6.setExpression("Constraints[14]", "Params.sketch6_width2")
sketch6.setExpression("Constraints[15]", "Params.sketch6_height")
pad5 = doc.addObject("PartDesign::Pad", "Pad004")
body.addObject(pad5)
pad5.Profile = sketch6
pad5.setExpression("Length", "Params.pad5_length")
pad5.Reversed = True

sketch7 = doc.addObject("Sketcher::SketchObject", "Sketch006")
body.addObject(sketch7)
sketch7.AttachmentSupport = (doc.XZ_Plane, [""])
sketch7.MapMode = "FlatFace"
sketch7.AttachmentOffset = App.Placement(Vector(0, 0, -2), App.Rotation())
sketch7.addGeometry([
    Part.Circle(Vector(16, -61.5, 0), Vector(0, 0, 1), 2),
    Part.Circle(Vector(16, -61.5, 0), Vector(0, 0, 1), 0.95),
], False)
sketch7.addConstraint([
    Sketcher.Constraint("Coincident", 1, 3, 0, 3),
    Sketcher.Constraint("Diameter", 0, 4.0),
    Sketcher.Constraint("Diameter", 1, 1.9),
    Sketcher.Constraint("DistanceX", -1, 1, 0, 3, 16.0),
    Sketcher.Constraint("DistanceY", 0, 3, -1, 1, 61.5),
])
sketch7.setExpression("Constraints[1]", "Params.sketch7_diameter")
sketch7.setExpression("Constraints[2]", "Params.sketch7_diameter2")
pad6 = doc.addObject("PartDesign::Pad", "Pad005")
body.addObject(pad6)
pad6.Profile = sketch7
pad6.setExpression("Length", "Params.pad6_length")
pad6.Reversed = True

sketch8 = doc.addObject("Sketcher::SketchObject", "Sketch007")
body.addObject(sketch8)
sketch8.AttachmentSupport = (doc.XZ_Plane, [""])
sketch8.MapMode = "FlatFace"
sketch8.AttachmentOffset = App.Placement(Vector(0, 0, -4), App.Rotation())
sketch8.addGeometry([
    Part.LineSegment(Vector(56, -15.5, 0), Vector(56, -5.5, 0)),
    Part.LineSegment(Vector(56, -5.5, 0), Vector(61, -5.5, 0)),
    Part.LineSegment(Vector(61, -5.5, 0), Vector(61, -15.5, 0)),
    Part.LineSegment(Vector(61, -15.5, 0), Vector(56, -15.5, 0)),
    Part.LineSegment(Vector(74, -15.5, 0), Vector(69, -15.5, 0)),
    Part.LineSegment(Vector(69, -15.5, 0), Vector(69, -5.5, 0)),
    Part.LineSegment(Vector(69, -5.5, 0), Vector(74, -5.5, 0)),
    Part.LineSegment(Vector(74, -5.5, 0), Vector(74, -15.5, 0)),
], False)
sketch8.addConstraint([
    Sketcher.Constraint("Coincident", 0, 2, 1, 1),
    Sketcher.Constraint("Coincident", 1, 2, 2, 1),
    Sketcher.Constraint("Coincident", 2, 2, 3, 1),
    Sketcher.Constraint("Coincident", 3, 2, 0, 1),
    Sketcher.Constraint("Coincident", 4, 2, 5, 1),
    Sketcher.Constraint("Coincident", 5, 2, 6, 1),
    Sketcher.Constraint("Coincident", 6, 2, 7, 1),
    Sketcher.Constraint("Coincident", 7, 2, 4, 1),
    Sketcher.Constraint("Vertical", 0),
    Sketcher.Constraint("Horizontal", 1),
    Sketcher.Constraint("Vertical", 2),
    Sketcher.Constraint("Horizontal", 3),
    Sketcher.Constraint("Horizontal", 4),
    Sketcher.Constraint("Vertical", 5),
    Sketcher.Constraint("Horizontal", 6),
    Sketcher.Constraint("Vertical", 7),
    Sketcher.Constraint("Horizontal", 3, 2, 4, 2),
    Sketcher.Constraint("Horizontal", 1, 2, 5, 2),
    Sketcher.Constraint("Equal", 3, 4),
    Sketcher.Constraint("DistanceX", 1, 1, 1, 2, 5.0),
    Sketcher.Constraint("DistanceY", 0, 1, 0, 2, 10.0),
    Sketcher.Constraint("DistanceX", 2, 2, 4, 2, 8.0),
    Sketcher.Constraint("DistanceX", -1, 1, 0, 2, 56.0),
    Sketcher.Constraint("DistanceY", 0, 2, -1, 1, 5.5),
])
sketch8.setExpression("Constraints[19]", "Params.sketch8_width")
sketch8.setExpression("Constraints[20]", "Params.sketch8_height")
pad7 = doc.addObject("PartDesign::Pad", "Pad006")
body.addObject(pad7)
pad7.Profile = sketch8
pad7.Type = "TwoLengths"
pad7.setExpression("Length", "Params.pad7_length")
pad7.setExpression("Length2", "Params.pad7_length2")
pad7.Reversed = True

sketch9 = doc.addObject("Sketcher::SketchObject", "Sketch008")
body.addObject(sketch9)
sketch9.AttachmentSupport = (doc.XY_Plane, [""])
sketch9.MapMode = "FlatFace"
sketch9.AttachmentOffset = App.Placement(Vector(0, 0, -5.5), App.Rotation())
sketch9.addGeometry([
    Part.LineSegment(Vector(69, 52, 0), Vector(61, 52, 0)),
    Part.LineSegment(Vector(61, 52, 0), Vector(61, 47, 0)),
    Part.ArcOfCircle(Part.Circle(Vector(65, 47, 0), Vector(0, 0, 1), 4), math.radians(0), math.radians(180)),
    Part.LineSegment(Vector(69, 47, 0), Vector(69, 52, 0)),
    Part.LineSegment(Vector(69, 34, 0), Vector(61, 34, 0)),
    Part.LineSegment(Vector(61, 34, 0), Vector(61, 29, 0)),
    Part.ArcOfCircle(Part.Circle(Vector(65, 29, 0), Vector(0, 0, 1), 4), math.radians(0), math.radians(180)),
    Part.LineSegment(Vector(69, 29, 0), Vector(69, 34, 0)),
], False)
sketch9.addConstraint([
    Sketcher.Constraint("Coincident", 0, 2, 1, 1),
    Sketcher.Constraint("Tangent", 1, 2, 2, 2),
    Sketcher.Constraint("Tangent", 2, 1, 3, 1),
    Sketcher.Constraint("Coincident", 3, 2, 0, 1),
    Sketcher.Constraint("Coincident", 4, 2, 5, 1),
    Sketcher.Constraint("Tangent", 5, 2, 6, 2),
    Sketcher.Constraint("Tangent", 6, 1, 7, 1),
    Sketcher.Constraint("Coincident", 7, 2, 4, 1),
    Sketcher.Constraint("Horizontal", 0),
    Sketcher.Constraint("Vertical", 1),
    Sketcher.Constraint("Vertical", 3),
    Sketcher.Constraint("Horizontal", 4),
    Sketcher.Constraint("Vertical", 5),
    Sketcher.Constraint("Vertical", 7),
    Sketcher.Constraint("Equal", 2, 6),
    Sketcher.Constraint("Vertical", 2, 3, 6, 3),
    Sketcher.Constraint("Equal", 3, 5),
    Sketcher.Constraint("DistanceY", 1, 2, 1, 1, 5.0),
    Sketcher.Constraint("Radius", 2, 4.0),
    Sketcher.Constraint("DistanceY", 4, 2, 1, 2, 13.0),
    Sketcher.Constraint("DistanceX", -1, 1, 2, 3, 65.0),
    Sketcher.Constraint("DistanceY", -1, 1, 2, 3, 47.0),
])
sketch9.setExpression("Constraints[17]", "Params.sketch9_height")
sketch9.setExpression("Constraints[18]", "Params.sketch9_radius")
pad8 = doc.addObject("PartDesign::Pad", "Pad007")
body.addObject(pad8)
pad8.Profile = sketch9
pad8.setExpression("Length", "Params.pad8_length")
pad8.Reversed = True

doc.recompute()
